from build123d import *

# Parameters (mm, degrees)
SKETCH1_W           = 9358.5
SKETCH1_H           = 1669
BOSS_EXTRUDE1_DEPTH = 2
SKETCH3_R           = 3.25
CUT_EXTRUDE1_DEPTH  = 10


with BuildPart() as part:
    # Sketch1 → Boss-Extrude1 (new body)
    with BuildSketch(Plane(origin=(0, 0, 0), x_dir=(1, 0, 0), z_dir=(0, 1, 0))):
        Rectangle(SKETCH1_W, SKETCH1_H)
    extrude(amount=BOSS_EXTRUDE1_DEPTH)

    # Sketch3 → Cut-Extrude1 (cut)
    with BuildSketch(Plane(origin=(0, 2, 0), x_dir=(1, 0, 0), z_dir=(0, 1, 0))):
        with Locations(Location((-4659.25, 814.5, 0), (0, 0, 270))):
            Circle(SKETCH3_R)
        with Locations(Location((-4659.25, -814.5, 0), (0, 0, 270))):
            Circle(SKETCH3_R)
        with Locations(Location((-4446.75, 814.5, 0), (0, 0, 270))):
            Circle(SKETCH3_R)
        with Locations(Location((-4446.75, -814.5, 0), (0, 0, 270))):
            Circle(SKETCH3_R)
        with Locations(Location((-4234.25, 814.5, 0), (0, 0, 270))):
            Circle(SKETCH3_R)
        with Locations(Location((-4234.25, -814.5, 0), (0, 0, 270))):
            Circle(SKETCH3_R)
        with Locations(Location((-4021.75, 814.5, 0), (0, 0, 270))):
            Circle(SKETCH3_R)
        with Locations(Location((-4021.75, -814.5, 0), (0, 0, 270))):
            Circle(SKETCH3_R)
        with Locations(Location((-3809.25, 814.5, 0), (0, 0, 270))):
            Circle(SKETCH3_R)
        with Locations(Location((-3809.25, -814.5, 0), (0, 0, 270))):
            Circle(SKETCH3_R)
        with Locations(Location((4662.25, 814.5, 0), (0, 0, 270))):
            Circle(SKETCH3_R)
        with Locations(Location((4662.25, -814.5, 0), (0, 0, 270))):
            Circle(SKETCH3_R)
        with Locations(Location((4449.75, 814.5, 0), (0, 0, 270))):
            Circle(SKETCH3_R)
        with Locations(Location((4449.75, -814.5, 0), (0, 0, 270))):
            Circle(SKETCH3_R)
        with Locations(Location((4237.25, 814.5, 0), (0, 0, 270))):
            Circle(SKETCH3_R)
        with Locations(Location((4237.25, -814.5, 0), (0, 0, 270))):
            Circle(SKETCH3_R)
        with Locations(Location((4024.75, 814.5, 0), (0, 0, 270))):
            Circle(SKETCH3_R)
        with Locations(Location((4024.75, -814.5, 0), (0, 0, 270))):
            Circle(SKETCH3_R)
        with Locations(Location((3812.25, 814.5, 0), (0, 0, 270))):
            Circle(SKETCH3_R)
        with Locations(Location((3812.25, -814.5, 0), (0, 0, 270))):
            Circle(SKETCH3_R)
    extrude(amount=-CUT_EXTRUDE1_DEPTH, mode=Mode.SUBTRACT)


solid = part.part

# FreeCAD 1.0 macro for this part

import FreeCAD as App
import Part
import Sketcher
from FreeCAD import Vector

doc = App.newDocument("Part")
body = doc.addObject("PartDesign::Body", "Body")

# Sketch on XZ plane
sketch1 = doc.addObject("Sketcher::SketchObject", "Sketch")
body.addObject(sketch1)
sketch1.AttachmentSupport = (doc.XZ_Plane, [""])
sketch1.MapMode = "FlatFace"
sketch1.addGeometry([
    Part.LineSegment(Vector(-4679, -834, 0), Vector(-4679, 834, 0)),
    Part.LineSegment(Vector(-4679, 834, 0), Vector(4679, 834, 0)),
    Part.LineSegment(Vector(4679, 834, 0), Vector(4679, -834, 0)),
    Part.LineSegment(Vector(4679, -834, 0), Vector(-4679, -834, 0)),
], False)
sketch1.addConstraint([
    Sketcher.Constraint("Coincident", 0, 2, 1, 1),
    Sketcher.Constraint("Coincident", 1, 2, 2, 1),
    Sketcher.Constraint("Coincident", 2, 2, 3, 1),
    Sketcher.Constraint("Coincident", 3, 2, 0, 1),
    Sketcher.Constraint("Vertical", 0),
    Sketcher.Constraint("Horizontal", 1),
    Sketcher.Constraint("Vertical", 2),
    Sketcher.Constraint("Horizontal", 3),
    Sketcher.Constraint("Symmetric", 0, 2, 2, 2, -1, 1),
    Sketcher.Constraint("DistanceY", 0, 1, 0, 2, 1669.0),
    Sketcher.Constraint("DistanceX", 1, 1, 1, 2, 9358.5),
])
pad1 = doc.addObject("PartDesign::Pad", "Pad")
body.addObject(pad1)
pad1.Profile = sketch1
pad1.Length = 2
pad1.Reversed = True

# Sketch on XZ plane
sketch2 = doc.addObject("Sketcher::SketchObject", "Sketch001")
body.addObject(sketch2)
sketch2.AttachmentSupport = (doc.XZ_Plane, [""])
sketch2.MapMode = "FlatFace"
sketch2.AttachmentOffset = App.Placement(Vector(0, 0, -2), App.Rotation())
sketch2.addGeometry([
    Part.Circle(Vector(-4659.2, -814.5, 0), Vector(0, 0, 1), 3.2),  # 0
    Part.Circle(Vector(-4659.2, 814.5, 0), Vector(0, 0, 1), 3.2),  # 1
    Part.Circle(Vector(-4446.8, -814.5, 0), Vector(0, 0, 1), 3.2),  # 2
    Part.Circle(Vector(-4446.8, 814.5, 0), Vector(0, 0, 1), 3.2),  # 3
    Part.Circle(Vector(-4234.2, -814.5, 0), Vector(0, 0, 1), 3.2),  # 4
    Part.Circle(Vector(-4234.2, 814.5, 0), Vector(0, 0, 1), 3.2),  # 5
    Part.Circle(Vector(-4021.8, -814.5, 0), Vector(0, 0, 1), 3.2),  # 6
    Part.Circle(Vector(-4021.8, 814.5, 0), Vector(0, 0, 1), 3.2),  # 7
    Part.Circle(Vector(-3809.2, -814.5, 0), Vector(0, 0, 1), 3.2),  # 8
    Part.Circle(Vector(-3809.2, 814.5, 0), Vector(0, 0, 1), 3.2),  # 9
    Part.Circle(Vector(4662.2, -814.5, 0), Vector(0, 0, 1), 3.2),  # 10
    Part.Circle(Vector(4662.2, 814.5, 0), Vector(0, 0, 1), 3.2),  # 11
    Part.Circle(Vector(4449.8, -814.5, 0), Vector(0, 0, 1), 3.2),  # 12
    Part.Circle(Vector(4449.8, 814.5, 0), Vector(0, 0, 1), 3.2),  # 13
    Part.Circle(Vector(4237.2, -814.5, 0), Vector(0, 0, 1), 3.2),  # 14
    Part.Circle(Vector(4237.2, 814.5, 0), Vector(0, 0, 1), 3.2),  # 15
    Part.Circle(Vector(4024.8, -814.5, 0), Vector(0, 0, 1), 3.2),  # 16
    Part.Circle(Vector(4024.8, 814.5, 0), Vector(0, 0, 1), 3.2),  # 17
    Part.Circle(Vector(3812.2, -814.5, 0), Vector(0, 0, 1), 3.2),  # 18
    Part.Circle(Vector(3812.2, 814.5, 0), Vector(0, 0, 1), 3.2),  # 19
], False)
sketch2.addConstraint([
    Sketcher.Constraint("Equal", 0, 1),
    Sketcher.Constraint("Equal", 1, 2),
    Sketcher.Constraint("Equal", 2, 3),
    Sketcher.Constraint("Equal", 3, 4),
    Sketcher.Constraint("Equal", 4, 5),
    Sketcher.Constraint("Equal", 5, 6),
    Sketcher.Constraint("Equal", 6, 7),
    Sketcher.Constraint("Equal", 7, 8),
    Sketcher.Constraint("Equal", 8, 9),
    Sketcher.Constraint("Equal", 9, 10),
    Sketcher.Constraint("Equal", 10, 11),
    Sketcher.Constraint("Equal", 11, 12),
    Sketcher.Constraint("Equal", 12, 13),
    Sketcher.Constraint("Equal", 13, 14),
    Sketcher.Constraint("Equal", 14, 15),
    Sketcher.Constraint("Equal", 15, 16),
    Sketcher.Constraint("Equal", 16, 17),
    Sketcher.Constraint("Equal", 17, 18),
    Sketcher.Constraint("Equal", 18, 19),
    Sketcher.Constraint("Symmetric", 0, 3, 1, 3, -1),
    Sketcher.Constraint("Symmetric", 2, 3, 3, 3, -1),
    Sketcher.Constraint("Symmetric", 4, 3, 5, 3, -1),
    Sketcher.Constraint("Symmetric", 6, 3, 7, 3, -1),
    Sketcher.Constraint("Symmetric", 8, 3, 9, 3, -1),
    Sketcher.Constraint("Symmetric", 10, 3, 11, 3, -1),
    Sketcher.Constraint("Symmetric", 12, 3, 13, 3, -1),
    Sketcher.Constraint("Symmetric", 14, 3, 15, 3, -1),
    Sketcher.Constraint("Symmetric", 16, 3, 17, 3, -1),
    Sketcher.Constraint("Symmetric", 18, 3, 19, 3, -1),
    Sketcher.Constraint("Horizontal", 0, 3, 2, 3),
    Sketcher.Constraint("Horizontal", 2, 3, 4, 3),
    Sketcher.Constraint("Horizontal", 4, 3, 6, 3),
    Sketcher.Constraint("Horizontal", 6, 3, 8, 3),
    Sketcher.Constraint("Horizontal", 8, 3, 10, 3),
    Sketcher.Constraint("Horizontal", 10, 3, 12, 3),
    Sketcher.Constraint("Horizontal", 12, 3, 14, 3),
    Sketcher.Constraint("Horizontal", 14, 3, 16, 3),
    Sketcher.Constraint("Horizontal", 16, 3, 18, 3),
    Sketcher.Constraint("Diameter", 0, 6.5),
    Sketcher.Constraint("DistanceY", 0, 3, 1, 3, 1629.0),
    Sketcher.Constraint("DistanceX", 0, 3, 4, 3, 425.0),
    Sketcher.Constraint("DistanceX", 2, 3, 6, 3, 425.0),
    Sketcher.Constraint("DistanceX", 4, 3, 8, 3, 425.0),
    Sketcher.Constraint("DistanceX", 6, 3, 10, 3, 8684.0),
    Sketcher.Constraint("DistanceX", 8, 3, 12, 3, 8259.0),
    Sketcher.Constraint("DistanceX", 14, 3, 10, 3, 425.0),
    Sketcher.Constraint("DistanceX", 16, 3, 12, 3, 425.0),
    Sketcher.Constraint("DistanceX", 18, 3, 14, 3, 425.0),
    Sketcher.Constraint("DistanceX", 0, 3, 2, 3, 212.5),
    Sketcher.Constraint("DistanceX", 0, 3, -1, 1, 4659.25),
])
pocket1 = doc.addObject("PartDesign::Pocket", "Pocket")
body.addObject(pocket1)
pocket1.Profile = sketch2
pocket1.Length = 10
pocket1.Reversed = True

doc.recompute()
